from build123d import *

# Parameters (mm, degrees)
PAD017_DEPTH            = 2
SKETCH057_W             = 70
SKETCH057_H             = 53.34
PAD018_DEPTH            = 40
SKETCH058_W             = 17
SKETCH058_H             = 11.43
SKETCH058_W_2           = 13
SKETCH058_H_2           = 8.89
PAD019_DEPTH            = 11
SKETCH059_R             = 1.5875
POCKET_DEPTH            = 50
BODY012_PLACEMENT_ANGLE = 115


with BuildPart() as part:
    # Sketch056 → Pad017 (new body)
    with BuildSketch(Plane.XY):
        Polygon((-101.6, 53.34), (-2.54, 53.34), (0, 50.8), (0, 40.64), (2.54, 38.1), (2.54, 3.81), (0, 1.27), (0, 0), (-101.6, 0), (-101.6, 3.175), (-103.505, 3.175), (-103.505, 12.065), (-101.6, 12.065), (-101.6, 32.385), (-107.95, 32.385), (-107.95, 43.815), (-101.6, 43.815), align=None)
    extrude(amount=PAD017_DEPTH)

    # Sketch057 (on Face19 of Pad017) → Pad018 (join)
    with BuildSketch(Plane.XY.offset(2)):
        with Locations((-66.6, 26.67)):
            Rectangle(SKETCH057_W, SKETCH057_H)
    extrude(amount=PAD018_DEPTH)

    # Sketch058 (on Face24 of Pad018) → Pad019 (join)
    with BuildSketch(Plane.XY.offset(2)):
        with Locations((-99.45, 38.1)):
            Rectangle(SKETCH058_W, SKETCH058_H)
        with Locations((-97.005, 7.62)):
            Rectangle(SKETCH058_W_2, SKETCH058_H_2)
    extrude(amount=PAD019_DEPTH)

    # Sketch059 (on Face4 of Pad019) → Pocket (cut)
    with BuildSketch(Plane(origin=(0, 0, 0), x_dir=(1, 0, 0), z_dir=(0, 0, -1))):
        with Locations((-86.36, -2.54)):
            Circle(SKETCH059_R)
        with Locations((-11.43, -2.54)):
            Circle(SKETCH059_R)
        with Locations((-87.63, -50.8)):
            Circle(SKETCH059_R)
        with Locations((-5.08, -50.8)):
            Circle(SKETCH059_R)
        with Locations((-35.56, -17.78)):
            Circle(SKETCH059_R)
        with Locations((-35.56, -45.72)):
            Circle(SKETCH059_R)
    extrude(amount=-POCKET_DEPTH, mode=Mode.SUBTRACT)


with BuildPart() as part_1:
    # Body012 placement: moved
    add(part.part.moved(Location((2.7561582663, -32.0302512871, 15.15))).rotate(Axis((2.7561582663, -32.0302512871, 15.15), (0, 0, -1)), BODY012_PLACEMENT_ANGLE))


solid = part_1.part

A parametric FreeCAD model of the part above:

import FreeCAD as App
import Part
import Sketcher
from FreeCAD import Vector
Q = App.Units.Quantity


def add_polygon(sketch, points):
    """Adds a closed chain of lines whose ends are joined by coincident constraints."""
    first, n = sketch.GeometryCount, len(points)
    for a, b in zip(points, points[1:] + points[:1]):
        sketch.addGeometry(Part.LineSegment(App.Vector(*a, 0), App.Vector(*b, 0)), False)
    for i in range(n):
        sketch.addConstraint(Sketcher.Constraint("Coincident", first + i, 2, first + (i + 1) % n, 1))

doc = App.newDocument("Part")
body = doc.addObject("PartDesign::Body", "Body")

# Sketch on XY plane
sketch1 = body.newObject("Sketcher::SketchObject", "Sketch")
sketch1.AttachmentSupport = (doc.getObject("XY_Plane"), [""])
sketch1.MapMode = "FlatFace"
add_polygon(sketch1, [(-2.5, 53.3), (-101.6, 53.3), (-101.6, 43.8), (-108, 43.8), (-108, 32.4), (-101.6, 32.4), (-101.6, 12.1), (-103.5, 12.1), (-103.5, 3.2), (-101.6, 3.2), (-101.6, 0), (0, 0), (0, 1.3), (2.5, 3.8), (2.5, 38.1), (0, 40.6), (0, 50.8)])  # lines 0-16
sketch1.addConstraint([
    Sketcher.Constraint("Horizontal", 0),
    Sketcher.Constraint("Vertical", 1),
    Sketcher.Constraint("Horizontal", 2),
    Sketcher.Constraint("Vertical", 3),
    Sketcher.Constraint("Horizontal", 4),
    Sketcher.Constraint("Vertical", 5),
    Sketcher.Constraint("Horizontal", 6),
    Sketcher.Constraint("Vertical", 7),
    Sketcher.Constraint("Horizontal", 8),
    Sketcher.Constraint("Vertical", 9),
    Sketcher.Constraint("Horizontal", 10),
    Sketcher.Constraint("Vertical", 11),
    Sketcher.Constraint("Vertical", 13),
    Sketcher.Constraint("Vertical", 15),
    Sketcher.Constraint("Coincident", 10, 2, -1, 1),
    Sketcher.Constraint("PointOnObject", 14, 2, -2),
    Sketcher.Constraint("Perpendicular", 12, 14),
    Sketcher.Constraint("Parallel", 14, 16),
    Sketcher.Constraint("Vertical", 1, 2, 4, 2),
    Sketcher.Constraint("Vertical", 5, 2, 8, 2),
    Sketcher.Constraint("Equal", 12, 14),
    Sketcher.Constraint("Equal", 14, 16),
    Sketcher.Constraint("DistanceX", 10, 1, 10, 2, Q("4 in")),
    Sketcher.Constraint("DistanceX", 0, 2, 0, 1, Q("3.9 in")),
    Sketcher.Constraint("DistanceY", 5, 2, 5, 1, Q("0.8 in")),
    Sketcher.Constraint("DistanceY", 15, 1, 15, 2, Q("0.4 in")),
    Sketcher.Constraint("DistanceY", -1, 1, 15, 2, Q("2 in")),
    Sketcher.Constraint("DistanceX", 2, 2, 2, 1, Q("0.25 in")),
    Sketcher.Constraint("DistanceY", 3, 2, 3, 1, Q("0.45 in")),
    Sketcher.Constraint("DistanceY", 7, 2, 7, 1, Q("0.35 in")),
    Sketcher.Constraint("DistanceY", 11, 1, 11, 2, Q("0.05 in")),
    Sketcher.Constraint("DistanceX", 6, 2, 6, 1, Q("0.075 in")),
    Sketcher.Constraint("DistanceY", 1, 2, 1, 1, Q("0.375 in")),
])
pad1 = body.newObject("PartDesign::Pad", "Pad")
pad1.Profile = sketch1
pad1.Length = 2

# Sketch on XY plane
sketch2 = body.newObject("Sketcher::SketchObject", "Sketch001")
sketch2.AttachmentSupport = (doc.getObject("XY_Plane"), [""])
sketch2.MapMode = "FlatFace"
sketch2.AttachmentOffset = App.Placement(Vector(0, 0, 2), App.Rotation())
add_polygon(sketch2, [(-102, 53), (-102, 0), (-32, 0), (-32, 53)])  # lines 0-3
sketch2.addConstraint([
    Sketcher.Constraint("Vertical", 0),
    Sketcher.Constraint("Horizontal", 1),
    Sketcher.Constraint("Vertical", 2),
    Sketcher.Constraint("Horizontal", 3),
    Sketcher.Constraint("PointOnObject", 0, 2, -1),
    Sketcher.Constraint("DistanceY", 0, 2, 0, 1, Q("2.1 in")),
    Sketcher.Constraint("DistanceX", 0, 2, -1, 1, Q("4 in")),
    Sketcher.Constraint("DistanceX", 1, 1, 1, 2, Q("70 mm")),
])
pad2 = body.newObject("PartDesign::Pad", "Pad001")
pad2.Profile = sketch2
pad2.Length = 40

# Sketch on XY plane
sketch3 = body.newObject("Sketcher::SketchObject", "Sketch002")
sketch3.AttachmentSupport = (doc.getObject("XY_Plane"), [""])
sketch3.MapMode = "FlatFace"
sketch3.AttachmentOffset = App.Placement(Vector(0, 0, 2), App.Rotation())
add_polygon(sketch3, [(-108, 44), (-108, 32), (-91, 32), (-91, 44)])  # lines 0-3
add_polygon(sketch3, [(-104, 12), (-104, 3), (-91, 3), (-91, 12)])  # lines 4-7
sketch3.addConstraint([
    Sketcher.Constraint("Vertical", 0),
    Sketcher.Constraint("Horizontal", 1),
    Sketcher.Constraint("Vertical", 2),
    Sketcher.Constraint("Horizontal", 3),
    Sketcher.Constraint("Vertical", 4),
    Sketcher.Constraint("Horizontal", 5),
    Sketcher.Constraint("Vertical", 6),
    Sketcher.Constraint("Horizontal", 7),
    Sketcher.Constraint("DistanceY", 0, 2, 0, 1, Q("0.45 in")),
    Sketcher.Constraint("DistanceY", 4, 2, 4, 1, Q("0.35 in")),
    Sketcher.Constraint("DistanceY", 4, 2, 3, 2, Q("1.6 in")),
    Sketcher.Constraint("DistanceX", 0, 2, -1, 1, Q("4.25 in")),
    Sketcher.Constraint("DistanceY", -1, 1, 0, 2, Q("1.275 in")),
    Sketcher.Constraint("DistanceX", 4, 2, -1, 1, Q("4.075 in")),
    Sketcher.Constraint("DistanceX", 1, 1, 1, 2, Q("17 mm")),
    Sketcher.Constraint("DistanceX", 5, 1, 5, 2, Q("13 mm")),
])
pad3 = body.newObject("PartDesign::Pad", "Pad002")
pad3.Profile = sketch3
pad3.Length = 11

# Sketch on XY plane
sketch4 = body.newObject("Sketcher::SketchObject", "Sketch003")
sketch4.AttachmentSupport = (doc.getObject("XY_Plane"), [""])
sketch4.MapMode = "FlatFace"
sketch4.addGeometry([
    Part.Circle(Vector(-86.4, 2.5, 0), Vector(0, 0, 1), 1.6),  # 0
    Part.Circle(Vector(-11.4, 2.5, 0), Vector(0, 0, 1), 1.6),  # 1
    Part.Circle(Vector(-87.6, 50.8, 0), Vector(0, 0, 1), 1.6),  # 2
    Part.Circle(Vector(-5.1, 50.8, 0), Vector(0, 0, 1), 1.6),  # 3
    Part.Circle(Vector(-35.6, 17.8, 0), Vector(0, 0, 1), 1.6),  # 4
    Part.Circle(Vector(-35.6, 45.7, 0), Vector(0, 0, 1), 1.6),  # 5
], False)
sketch4.addConstraint([
    Sketcher.Constraint("Equal", 0, 1),
    Sketcher.Constraint("Equal", 1, 2),
    Sketcher.Constraint("Equal", 2, 3),
    Sketcher.Constraint("Equal", 3, 4),
    Sketcher.Constraint("Equal", 4, 5),
    Sketcher.Constraint("Horizontal", 0, 3, 1, 3),
    Sketcher.Constraint("Horizontal", 2, 3, 3, 3),
    Sketcher.Constraint("Vertical", 4, 3, 5, 3),
    Sketcher.Constraint("Diameter", 0, Q("0.125 in")),
    Sketcher.Constraint("DistanceY", -1, 1, 2, 3, Q("2 in")),
    Sketcher.Constraint("DistanceX", 2, 3, 1, 3, Q("3 in")),
    Sketcher.Constraint("DistanceX", 0, 3, 4, 3, Q("2 in")),
    Sketcher.Constraint("DistanceX", 0, 3, -1, 1, Q("3.4 in")),
    Sketcher.Constraint("DistanceY", -1, 1, 0, 3, Q("0.1 in")),
    Sketcher.Constraint("DistanceX", 3, 3, -1, 1, Q("0.2 in")),
    Sketcher.Constraint("DistanceY", -1, 1, 4, 3, Q("0.7 in")),
    Sketcher.Constraint("DistanceY", -1, 1, 5, 3, Q("1.8 in")),
    Sketcher.Constraint("DistanceX", 1, 3, -1, 1, Q("0.45 in")),
])
pocket1 = body.newObject("PartDesign::Pocket", "Pocket")
pocket1.Profile = sketch4
pocket1.Length = 50
pocket1.Reversed = True
body2 = doc.addObject("PartDesign::Body", "Body001")
doc.recompute()

body.Placement = App.Placement(Vector(2.756158, -32.030251, 15.15), App.Rotation(Vector(0, 0, -1), 115))
boolean = body2.newObject("PartDesign::Boolean", "Boolean")
boolean.Type = "Fuse"
boolean.addObjects([body])

doc.recompute()
